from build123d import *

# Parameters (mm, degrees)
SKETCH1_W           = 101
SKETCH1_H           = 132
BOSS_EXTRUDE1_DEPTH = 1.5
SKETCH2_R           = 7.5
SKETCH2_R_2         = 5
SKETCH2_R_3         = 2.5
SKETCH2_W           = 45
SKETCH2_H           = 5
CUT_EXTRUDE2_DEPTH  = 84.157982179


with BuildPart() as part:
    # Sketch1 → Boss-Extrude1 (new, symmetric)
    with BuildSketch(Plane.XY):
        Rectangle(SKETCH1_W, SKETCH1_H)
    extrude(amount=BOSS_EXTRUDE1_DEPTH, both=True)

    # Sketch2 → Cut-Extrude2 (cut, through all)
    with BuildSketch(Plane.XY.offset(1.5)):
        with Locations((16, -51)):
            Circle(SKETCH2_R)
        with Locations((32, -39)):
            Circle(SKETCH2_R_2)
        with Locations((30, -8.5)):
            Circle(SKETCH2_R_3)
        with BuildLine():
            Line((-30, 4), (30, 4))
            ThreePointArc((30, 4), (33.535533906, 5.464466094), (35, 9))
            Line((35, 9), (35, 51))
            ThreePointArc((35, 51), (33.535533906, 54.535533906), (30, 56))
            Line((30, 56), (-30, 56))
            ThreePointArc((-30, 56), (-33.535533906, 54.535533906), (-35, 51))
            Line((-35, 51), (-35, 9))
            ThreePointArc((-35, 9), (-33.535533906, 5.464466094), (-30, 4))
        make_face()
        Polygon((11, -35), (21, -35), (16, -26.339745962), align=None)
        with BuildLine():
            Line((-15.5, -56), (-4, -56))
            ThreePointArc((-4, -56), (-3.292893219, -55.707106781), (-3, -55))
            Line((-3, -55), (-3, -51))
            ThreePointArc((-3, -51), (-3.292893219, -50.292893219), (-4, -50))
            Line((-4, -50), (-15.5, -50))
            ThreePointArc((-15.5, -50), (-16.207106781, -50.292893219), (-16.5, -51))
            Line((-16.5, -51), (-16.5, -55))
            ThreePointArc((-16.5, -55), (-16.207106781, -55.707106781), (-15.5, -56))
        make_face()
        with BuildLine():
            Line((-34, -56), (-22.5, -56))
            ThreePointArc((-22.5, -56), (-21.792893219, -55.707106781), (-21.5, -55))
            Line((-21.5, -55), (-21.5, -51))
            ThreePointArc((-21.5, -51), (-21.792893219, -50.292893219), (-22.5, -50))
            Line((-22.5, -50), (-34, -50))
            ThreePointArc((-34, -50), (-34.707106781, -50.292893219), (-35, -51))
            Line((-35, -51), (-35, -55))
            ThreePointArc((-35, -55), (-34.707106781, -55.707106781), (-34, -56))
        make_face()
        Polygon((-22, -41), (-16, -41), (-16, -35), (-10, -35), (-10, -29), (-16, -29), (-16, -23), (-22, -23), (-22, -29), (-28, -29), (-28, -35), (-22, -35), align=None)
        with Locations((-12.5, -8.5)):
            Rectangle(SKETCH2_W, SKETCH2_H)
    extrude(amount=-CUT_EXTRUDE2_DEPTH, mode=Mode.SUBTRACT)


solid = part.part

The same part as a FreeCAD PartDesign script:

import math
import FreeCAD as App
import Part
import Sketcher
from FreeCAD import Vector
Q = App.Units.Quantity

doc = App.newDocument("Part")
body = doc.addObject("PartDesign::Body", "Body")

sketch1 = body.newObject("Sketcher::SketchObject", "Sketch")
sketch1.AttachmentSupport = (doc.getObject("XY_Plane"), [""])
sketch1.MapMode = "FlatFace"
sketch1.addGeometry([
    Part.LineSegment(Vector(-50.5, 66, 0), Vector(-50.5, -66, 0)),
    Part.LineSegment(Vector(-50.5, -66, 0), Vector(50.5, -66, 0)),
    Part.LineSegment(Vector(50.5, -66, 0), Vector(50.5, 66, 0)),
    Part.LineSegment(Vector(50.5, 66, 0), Vector(-50.5, 66, 0)),
], False)
sketch1.addConstraint([
    Sketcher.Constraint("Coincident", 0, 2, 1, 1),
    Sketcher.Constraint("Coincident", 1, 2, 2, 1),
    Sketcher.Constraint("Coincident", 2, 2, 3, 1),
    Sketcher.Constraint("Coincident", 3, 2, 0, 1),
    Sketcher.Constraint("Vertical", 0),
    Sketcher.Constraint("Horizontal", 1),
    Sketcher.Constraint("Vertical", 2),
    Sketcher.Constraint("Horizontal", 3),
    Sketcher.Constraint("Symmetric", 0, 2, 2, 2, -1, 1),
    Sketcher.Constraint("DistanceX", 1, 1, 1, 2, 101.0),
    Sketcher.Constraint("DistanceY", 0, 2, 0, 1, 132.0),
])
pad1 = body.newObject("PartDesign::Pad", "Pad")
pad1.Profile = sketch1
pad1.Length = 3
pad1.Midplane = True

sketch2 = body.newObject("Sketcher::SketchObject", "Sketch001")
sketch2.AttachmentSupport = (doc.getObject("XY_Plane"), [""])
sketch2.MapMode = "FlatFace"
sketch2.AttachmentOffset = App.Placement(Vector(0, 0, 1.5), App.Rotation())
sketch2.addGeometry([
    Part.Circle(Vector(16, -51, 0), Vector(0, 0, 1), 7.5),
    Part.Circle(Vector(32, -39, 0), Vector(0, 0, 1), 5),
    Part.Circle(Vector(30, -8.5, 0), Vector(0, 0, 1), 2.5),
    Part.LineSegment(Vector(-30, 4, 0), Vector(30, 4, 0)),
    Part.ArcOfCircle(Part.Circle(Vector(30, 9, 0), Vector(0, 0, 1), 5), math.radians(-90), math.radians(0)),
    Part.LineSegment(Vector(35, 9, 0), Vector(35, 51, 0)),
    Part.ArcOfCircle(Part.Circle(Vector(30, 51, 0), Vector(0, 0, 1), 5), math.radians(0), math.radians(90)),
    Part.LineSegment(Vector(30, 56, 0), Vector(-30, 56, 0)),
    Part.ArcOfCircle(Part.Circle(Vector(-30, 51, 0), Vector(0, 0, 1), 5), math.radians(90), math.radians(180)),
    Part.LineSegment(Vector(-35, 51, 0), Vector(-35, 9, 0)),
    Part.ArcOfCircle(Part.Circle(Vector(-30, 9, 0), Vector(0, 0, 1), 5), math.radians(180), math.radians(270)),
    Part.LineSegment(Vector(11, -35, 0), Vector(21, -35, 0)),
    Part.LineSegment(Vector(21, -35, 0), Vector(16, -26.339746, 0)),
    Part.LineSegment(Vector(16, -26.339746, 0), Vector(11, -35, 0)),
    Part.LineSegment(Vector(-15.5, -56, 0), Vector(-4, -56, 0)),
    Part.ArcOfCircle(Part.Circle(Vector(-4, -55, 0), Vector(0, 0, 1), 1), math.radians(-90), math.radians(0)),
    Part.LineSegment(Vector(-3, -55, 0), Vector(-3, -51, 0)),
    Part.ArcOfCircle(Part.Circle(Vector(-4, -51, 0), Vector(0, 0, 1), 1), math.radians(0), math.radians(90)),
    Part.LineSegment(Vector(-4, -50, 0), Vector(-15.5, -50, 0)),
    Part.ArcOfCircle(Part.Circle(Vector(-15.5, -51, 0), Vector(0, 0, 1), 1), math.radians(90), math.radians(180)),
    Part.LineSegment(Vector(-16.5, -51, 0), Vector(-16.5, -55, 0)),
    Part.ArcOfCircle(Part.Circle(Vector(-15.5, -55, 0), Vector(0, 0, 1), 1), math.radians(-180), math.radians(-90)),
    Part.LineSegment(Vector(-34, -56, 0), Vector(-22.5, -56, 0)),
    Part.ArcOfCircle(Part.Circle(Vector(-22.5, -55, 0), Vector(0, 0, 1), 1), math.radians(-90), math.radians(0)),
    Part.LineSegment(Vector(-21.5, -55, 0), Vector(-21.5, -51, 0)),
    Part.ArcOfCircle(Part.Circle(Vector(-22.5, -51, 0), Vector(0, 0, 1), 1), math.radians(0), math.radians(90)),
    Part.LineSegment(Vector(-22.5, -50, 0), Vector(-34, -50, 0)),
    Part.ArcOfCircle(Part.Circle(Vector(-34, -51, 0), Vector(0, 0, 1), 1), math.radians(90), math.radians(180)),
    Part.LineSegment(Vector(-35, -51, 0), Vector(-35, -55, 0)),
    Part.ArcOfCircle(Part.Circle(Vector(-34, -55, 0), Vector(0, 0, 1), 1), math.radians(-180), math.radians(-90)),
    Part.LineSegment(Vector(-22, -41, 0), Vector(-16, -41, 0)),
    Part.LineSegment(Vector(-16, -41, 0), Vector(-16, -35, 0)),
    Part.LineSegment(Vector(-16, -35, 0), Vector(-10, -35, 0)),
    Part.LineSegment(Vector(-10, -35, 0), Vector(-10, -29, 0)),
    Part.LineSegment(Vector(-10, -29, 0), Vector(-16, -29, 0)),
    Part.LineSegment(Vector(-16, -29, 0), Vector(-16, -23, 0)),
    Part.LineSegment(Vector(-16, -23, 0), Vector(-22, -23, 0)),
    Part.LineSegment(Vector(-22, -23, 0), Vector(-22, -29, 0)),
    Part.LineSegment(Vector(-22, -29, 0), Vector(-28, -29, 0)),
    Part.LineSegment(Vector(-28, -29, 0), Vector(-28, -35, 0)),
    Part.LineSegment(Vector(-28, -35, 0), Vector(-22, -35, 0)),
    Part.LineSegment(Vector(-22, -35, 0), Vector(-22, -41, 0)),
    Part.LineSegment(Vector(-35, -6, 0), Vector(-35, -11, 0)),
    Part.LineSegment(Vector(-35, -11, 0), Vector(10, -11, 0)),
    Part.LineSegment(Vector(10, -11, 0), Vector(10, -6, 0)),
    Part.LineSegment(Vector(10, -6, 0), Vector(-35, -6, 0)),
], False)
sketch2.addConstraint([
    Sketcher.Constraint("Tangent", 3, 2, 4, 1),
    Sketcher.Constraint("Tangent", 4, 2, 5, 1),
    Sketcher.Constraint("Tangent", 5, 2, 6, 1),
    Sketcher.Constraint("Tangent", 6, 2, 7, 1),
    Sketcher.Constraint("Tangent", 7, 2, 8, 1),
    Sketcher.Constraint("Tangent", 8, 2, 9, 1),
    Sketcher.Constraint("Tangent", 9, 2, 10, 1),
    Sketcher.Constraint("Tangent", 10, 2, 3, 1),
    Sketcher.Constraint("Coincident", 11, 2, 12, 1),
    Sketcher.Constraint("Coincident", 12, 2, 13, 1),
    Sketcher.Constraint("Coincident", 13, 2, 11, 1),
    Sketcher.Constraint("Tangent", 14, 2, 15, 1),
    Sketcher.Constraint("Tangent", 15, 2, 16, 1),
    Sketcher.Constraint("Tangent", 16, 2, 17, 1),
    Sketcher.Constraint("Tangent", 17, 2, 18, 1),
    Sketcher.Constraint("Tangent", 18, 2, 19, 1),
    Sketcher.Constraint("Tangent", 19, 2, 20, 1),
    Sketcher.Constraint("Tangent", 20, 2, 21, 1),
    Sketcher.Constraint("Tangent", 21, 2, 14, 1),
    Sketcher.Constraint("Tangent", 22, 2, 23, 1),
    Sketcher.Constraint("Tangent", 23, 2, 24, 1),
    Sketcher.Constraint("Tangent", 24, 2, 25, 1),
    Sketcher.Constraint("Tangent", 25, 2, 26, 1),
    Sketcher.Constraint("Tangent", 26, 2, 27, 1),
    Sketcher.Constraint("Tangent", 27, 2, 28, 1),
    Sketcher.Constraint("Tangent", 28, 2, 29, 1),
    Sketcher.Constraint("Tangent", 29, 2, 22, 1),
    Sketcher.Constraint("Coincident", 30, 2, 31, 1),
    Sketcher.Constraint("Coincident", 31, 2, 32, 1),
    Sketcher.Constraint("Coincident", 32, 2, 33, 1),
    Sketcher.Constraint("Coincident", 33, 2, 34, 1),
    Sketcher.Constraint("Coincident", 34, 2, 35, 1),
    Sketcher.Constraint("Coincident", 35, 2, 36, 1),
    Sketcher.Constraint("Coincident", 36, 2, 37, 1),
    Sketcher.Constraint("Coincident", 37, 2, 38, 1),
    Sketcher.Constraint("Coincident", 38, 2, 39, 1),
    Sketcher.Constraint("Coincident", 39, 2, 40, 1),
    Sketcher.Constraint("Coincident", 40, 2, 41, 1),
    Sketcher.Constraint("Coincident", 41, 2, 30, 1),
    Sketcher.Constraint("Coincident", 42, 2, 43, 1),
    Sketcher.Constraint("Coincident", 43, 2, 44, 1),
    Sketcher.Constraint("Coincident", 44, 2, 45, 1),
    Sketcher.Constraint("Coincident", 45, 2, 42, 1),
    Sketcher.Constraint("Horizontal", 3),
    Sketcher.Constraint("Vertical", 5),
    Sketcher.Constraint("Horizontal", 7),
    Sketcher.Constraint("Vertical", 9),
    Sketcher.Constraint("Horizontal", 11),
    Sketcher.Constraint("Horizontal", 14),
    Sketcher.Constraint("Vertical", 16),
    Sketcher.Constraint("Horizontal", 18),
    Sketcher.Constraint("Vertical", 20),
    Sketcher.Constraint("Horizontal", 22),
    Sketcher.Constraint("Vertical", 24),
    Sketcher.Constraint("Horizontal", 26),
    Sketcher.Constraint("Vertical", 28),
    Sketcher.Constraint("Horizontal", 30),
    Sketcher.Constraint("Vertical", 31),
    Sketcher.Constraint("Horizontal", 32),
    Sketcher.Constraint("Vertical", 33),
    Sketcher.Constraint("Horizontal", 34),
    Sketcher.Constraint("Vertical", 35),
    Sketcher.Constraint("Horizontal", 36),
    Sketcher.Constraint("Vertical", 37),
    Sketcher.Constraint("Horizontal", 38),
    Sketcher.Constraint("Vertical", 39),
    Sketcher.Constraint("Horizontal", 40),
    Sketcher.Constraint("Vertical", 41),
    Sketcher.Constraint("Vertical", 42),
    Sketcher.Constraint("Horizontal", 43),
    Sketcher.Constraint("Vertical", 44),
    Sketcher.Constraint("Horizontal", 45),
    Sketcher.Constraint("Equal", 1, 4),
    Sketcher.Constraint("Equal", 4, 6),
    Sketcher.Constraint("Equal", 6, 8),
    Sketcher.Constraint("Equal", 8, 10),
    Sketcher.Constraint("Equal", 15, 17),
    Sketcher.Constraint("Equal", 17, 19),
    Sketcher.Constraint("Equal", 19, 21),
    Sketcher.Constraint("Equal", 21, 23),
    Sketcher.Constraint("Equal", 23, 25),
    Sketcher.Constraint("Equal", 25, 27),
    Sketcher.Constraint("Equal", 27, 29),
    Sketcher.Constraint("Symmetric", 5, 2, 27, 2, -1, 1),
    Sketcher.Constraint("Horizontal", 0, 3, 17, 3),
    Sketcher.Constraint("Horizontal", 21, 3, 23, 3),
    Sketcher.Constraint("Horizontal", 19, 3, 25, 3),
    Sketcher.Constraint("Horizontal", 13, 2, 31, 2),
    Sketcher.Constraint("Horizontal", 34, 2, 37, 2),
    Sketcher.Constraint("Horizontal", 32, 2, 39, 2),
    Sketcher.Constraint("Vertical", 2, 3, 4, 3),
    Sketcher.Constraint("Vertical", 0, 3, 12, 2),
    Sketcher.Constraint("Vertical", 9, 2, 27, 2),
    Sketcher.Constraint("Vertical", 31, 2, 34, 2),
    Sketcher.Constraint("Vertical", 37, 2, 40, 2),
    Sketcher.Constraint("Vertical", 28, 2, 42, 2),
    Sketcher.Constraint("Equal", 18, 22),
    Sketcher.Constraint("Equal", 30, 32),
    Sketcher.Constraint("Equal", 36, 38),
    Sketcher.Constraint("Equal", 40, 31),
    Sketcher.Constraint("Equal", 31, 33),
    Sketcher.Constraint("Equal", 33, 35),
    Sketcher.Constraint("Equal", 12, 13),
    Sketcher.Constraint("Diameter", 0, 15.0),
    Sketcher.Constraint("Diameter", 1, 10.0),
    Sketcher.Constraint("Diameter", 2, 5.0),
    Sketcher.Constraint("Radius", 15, 1.0),
    Sketcher.Constraint("DistanceX", 3, 1, 3, 2, 60.0),
    Sketcher.Constraint("DistanceX", 11, 1, 11, 2, 10.0),
    Sketcher.Constraint("DistanceX", 30, 1, 30, 2, 6.0),
    Sketcher.Constraint("DistanceX", 43, 1, 43, 2, 45.0),
    Sketcher.Constraint("DistanceY", 5, 1, 5, 2, 42.0),
    Sketcher.Constraint("DistanceY", 16, 1, 16, 2, 4.0),
    Sketcher.Constraint("DistanceY", 42, 2, 42, 1, 5.0),
    Sketcher.Constraint("Angle", 12, Q("120 deg")),
    Sketcher.Constraint("DistanceX", 14, 1, 14, 2, 11.5),
    Sketcher.Constraint("DistanceX", -1, 1, 0, 3, 16.0),
    Sketcher.Constraint("DistanceY", 0, 3, -1, 1, 51.0),
    Sketcher.Constraint("DistanceX", -1, 1, 1, 3, 32.0),
    Sketcher.Constraint("DistanceY", 1, 3, -1, 1, 39.0),
    Sketcher.Constraint("DistanceX", 15, 3, -1, 1, 4.0),
    Sketcher.Constraint("DistanceY", 11, 2, -1, 1, 35.0),
    Sketcher.Constraint("DistanceX", 30, 2, -1, 1, 16.0),
    Sketcher.Constraint("DistanceY", 42, 2, -1, 1, 11.0),
    Sketcher.Constraint("DistanceY", 2, 3, -1, 1, 8.5),
])
pocket1 = body.newObject("PartDesign::Pocket", "Pocket")
pocket1.Profile = sketch2
pocket1.Type = "ThroughAll"

doc.recompute()
